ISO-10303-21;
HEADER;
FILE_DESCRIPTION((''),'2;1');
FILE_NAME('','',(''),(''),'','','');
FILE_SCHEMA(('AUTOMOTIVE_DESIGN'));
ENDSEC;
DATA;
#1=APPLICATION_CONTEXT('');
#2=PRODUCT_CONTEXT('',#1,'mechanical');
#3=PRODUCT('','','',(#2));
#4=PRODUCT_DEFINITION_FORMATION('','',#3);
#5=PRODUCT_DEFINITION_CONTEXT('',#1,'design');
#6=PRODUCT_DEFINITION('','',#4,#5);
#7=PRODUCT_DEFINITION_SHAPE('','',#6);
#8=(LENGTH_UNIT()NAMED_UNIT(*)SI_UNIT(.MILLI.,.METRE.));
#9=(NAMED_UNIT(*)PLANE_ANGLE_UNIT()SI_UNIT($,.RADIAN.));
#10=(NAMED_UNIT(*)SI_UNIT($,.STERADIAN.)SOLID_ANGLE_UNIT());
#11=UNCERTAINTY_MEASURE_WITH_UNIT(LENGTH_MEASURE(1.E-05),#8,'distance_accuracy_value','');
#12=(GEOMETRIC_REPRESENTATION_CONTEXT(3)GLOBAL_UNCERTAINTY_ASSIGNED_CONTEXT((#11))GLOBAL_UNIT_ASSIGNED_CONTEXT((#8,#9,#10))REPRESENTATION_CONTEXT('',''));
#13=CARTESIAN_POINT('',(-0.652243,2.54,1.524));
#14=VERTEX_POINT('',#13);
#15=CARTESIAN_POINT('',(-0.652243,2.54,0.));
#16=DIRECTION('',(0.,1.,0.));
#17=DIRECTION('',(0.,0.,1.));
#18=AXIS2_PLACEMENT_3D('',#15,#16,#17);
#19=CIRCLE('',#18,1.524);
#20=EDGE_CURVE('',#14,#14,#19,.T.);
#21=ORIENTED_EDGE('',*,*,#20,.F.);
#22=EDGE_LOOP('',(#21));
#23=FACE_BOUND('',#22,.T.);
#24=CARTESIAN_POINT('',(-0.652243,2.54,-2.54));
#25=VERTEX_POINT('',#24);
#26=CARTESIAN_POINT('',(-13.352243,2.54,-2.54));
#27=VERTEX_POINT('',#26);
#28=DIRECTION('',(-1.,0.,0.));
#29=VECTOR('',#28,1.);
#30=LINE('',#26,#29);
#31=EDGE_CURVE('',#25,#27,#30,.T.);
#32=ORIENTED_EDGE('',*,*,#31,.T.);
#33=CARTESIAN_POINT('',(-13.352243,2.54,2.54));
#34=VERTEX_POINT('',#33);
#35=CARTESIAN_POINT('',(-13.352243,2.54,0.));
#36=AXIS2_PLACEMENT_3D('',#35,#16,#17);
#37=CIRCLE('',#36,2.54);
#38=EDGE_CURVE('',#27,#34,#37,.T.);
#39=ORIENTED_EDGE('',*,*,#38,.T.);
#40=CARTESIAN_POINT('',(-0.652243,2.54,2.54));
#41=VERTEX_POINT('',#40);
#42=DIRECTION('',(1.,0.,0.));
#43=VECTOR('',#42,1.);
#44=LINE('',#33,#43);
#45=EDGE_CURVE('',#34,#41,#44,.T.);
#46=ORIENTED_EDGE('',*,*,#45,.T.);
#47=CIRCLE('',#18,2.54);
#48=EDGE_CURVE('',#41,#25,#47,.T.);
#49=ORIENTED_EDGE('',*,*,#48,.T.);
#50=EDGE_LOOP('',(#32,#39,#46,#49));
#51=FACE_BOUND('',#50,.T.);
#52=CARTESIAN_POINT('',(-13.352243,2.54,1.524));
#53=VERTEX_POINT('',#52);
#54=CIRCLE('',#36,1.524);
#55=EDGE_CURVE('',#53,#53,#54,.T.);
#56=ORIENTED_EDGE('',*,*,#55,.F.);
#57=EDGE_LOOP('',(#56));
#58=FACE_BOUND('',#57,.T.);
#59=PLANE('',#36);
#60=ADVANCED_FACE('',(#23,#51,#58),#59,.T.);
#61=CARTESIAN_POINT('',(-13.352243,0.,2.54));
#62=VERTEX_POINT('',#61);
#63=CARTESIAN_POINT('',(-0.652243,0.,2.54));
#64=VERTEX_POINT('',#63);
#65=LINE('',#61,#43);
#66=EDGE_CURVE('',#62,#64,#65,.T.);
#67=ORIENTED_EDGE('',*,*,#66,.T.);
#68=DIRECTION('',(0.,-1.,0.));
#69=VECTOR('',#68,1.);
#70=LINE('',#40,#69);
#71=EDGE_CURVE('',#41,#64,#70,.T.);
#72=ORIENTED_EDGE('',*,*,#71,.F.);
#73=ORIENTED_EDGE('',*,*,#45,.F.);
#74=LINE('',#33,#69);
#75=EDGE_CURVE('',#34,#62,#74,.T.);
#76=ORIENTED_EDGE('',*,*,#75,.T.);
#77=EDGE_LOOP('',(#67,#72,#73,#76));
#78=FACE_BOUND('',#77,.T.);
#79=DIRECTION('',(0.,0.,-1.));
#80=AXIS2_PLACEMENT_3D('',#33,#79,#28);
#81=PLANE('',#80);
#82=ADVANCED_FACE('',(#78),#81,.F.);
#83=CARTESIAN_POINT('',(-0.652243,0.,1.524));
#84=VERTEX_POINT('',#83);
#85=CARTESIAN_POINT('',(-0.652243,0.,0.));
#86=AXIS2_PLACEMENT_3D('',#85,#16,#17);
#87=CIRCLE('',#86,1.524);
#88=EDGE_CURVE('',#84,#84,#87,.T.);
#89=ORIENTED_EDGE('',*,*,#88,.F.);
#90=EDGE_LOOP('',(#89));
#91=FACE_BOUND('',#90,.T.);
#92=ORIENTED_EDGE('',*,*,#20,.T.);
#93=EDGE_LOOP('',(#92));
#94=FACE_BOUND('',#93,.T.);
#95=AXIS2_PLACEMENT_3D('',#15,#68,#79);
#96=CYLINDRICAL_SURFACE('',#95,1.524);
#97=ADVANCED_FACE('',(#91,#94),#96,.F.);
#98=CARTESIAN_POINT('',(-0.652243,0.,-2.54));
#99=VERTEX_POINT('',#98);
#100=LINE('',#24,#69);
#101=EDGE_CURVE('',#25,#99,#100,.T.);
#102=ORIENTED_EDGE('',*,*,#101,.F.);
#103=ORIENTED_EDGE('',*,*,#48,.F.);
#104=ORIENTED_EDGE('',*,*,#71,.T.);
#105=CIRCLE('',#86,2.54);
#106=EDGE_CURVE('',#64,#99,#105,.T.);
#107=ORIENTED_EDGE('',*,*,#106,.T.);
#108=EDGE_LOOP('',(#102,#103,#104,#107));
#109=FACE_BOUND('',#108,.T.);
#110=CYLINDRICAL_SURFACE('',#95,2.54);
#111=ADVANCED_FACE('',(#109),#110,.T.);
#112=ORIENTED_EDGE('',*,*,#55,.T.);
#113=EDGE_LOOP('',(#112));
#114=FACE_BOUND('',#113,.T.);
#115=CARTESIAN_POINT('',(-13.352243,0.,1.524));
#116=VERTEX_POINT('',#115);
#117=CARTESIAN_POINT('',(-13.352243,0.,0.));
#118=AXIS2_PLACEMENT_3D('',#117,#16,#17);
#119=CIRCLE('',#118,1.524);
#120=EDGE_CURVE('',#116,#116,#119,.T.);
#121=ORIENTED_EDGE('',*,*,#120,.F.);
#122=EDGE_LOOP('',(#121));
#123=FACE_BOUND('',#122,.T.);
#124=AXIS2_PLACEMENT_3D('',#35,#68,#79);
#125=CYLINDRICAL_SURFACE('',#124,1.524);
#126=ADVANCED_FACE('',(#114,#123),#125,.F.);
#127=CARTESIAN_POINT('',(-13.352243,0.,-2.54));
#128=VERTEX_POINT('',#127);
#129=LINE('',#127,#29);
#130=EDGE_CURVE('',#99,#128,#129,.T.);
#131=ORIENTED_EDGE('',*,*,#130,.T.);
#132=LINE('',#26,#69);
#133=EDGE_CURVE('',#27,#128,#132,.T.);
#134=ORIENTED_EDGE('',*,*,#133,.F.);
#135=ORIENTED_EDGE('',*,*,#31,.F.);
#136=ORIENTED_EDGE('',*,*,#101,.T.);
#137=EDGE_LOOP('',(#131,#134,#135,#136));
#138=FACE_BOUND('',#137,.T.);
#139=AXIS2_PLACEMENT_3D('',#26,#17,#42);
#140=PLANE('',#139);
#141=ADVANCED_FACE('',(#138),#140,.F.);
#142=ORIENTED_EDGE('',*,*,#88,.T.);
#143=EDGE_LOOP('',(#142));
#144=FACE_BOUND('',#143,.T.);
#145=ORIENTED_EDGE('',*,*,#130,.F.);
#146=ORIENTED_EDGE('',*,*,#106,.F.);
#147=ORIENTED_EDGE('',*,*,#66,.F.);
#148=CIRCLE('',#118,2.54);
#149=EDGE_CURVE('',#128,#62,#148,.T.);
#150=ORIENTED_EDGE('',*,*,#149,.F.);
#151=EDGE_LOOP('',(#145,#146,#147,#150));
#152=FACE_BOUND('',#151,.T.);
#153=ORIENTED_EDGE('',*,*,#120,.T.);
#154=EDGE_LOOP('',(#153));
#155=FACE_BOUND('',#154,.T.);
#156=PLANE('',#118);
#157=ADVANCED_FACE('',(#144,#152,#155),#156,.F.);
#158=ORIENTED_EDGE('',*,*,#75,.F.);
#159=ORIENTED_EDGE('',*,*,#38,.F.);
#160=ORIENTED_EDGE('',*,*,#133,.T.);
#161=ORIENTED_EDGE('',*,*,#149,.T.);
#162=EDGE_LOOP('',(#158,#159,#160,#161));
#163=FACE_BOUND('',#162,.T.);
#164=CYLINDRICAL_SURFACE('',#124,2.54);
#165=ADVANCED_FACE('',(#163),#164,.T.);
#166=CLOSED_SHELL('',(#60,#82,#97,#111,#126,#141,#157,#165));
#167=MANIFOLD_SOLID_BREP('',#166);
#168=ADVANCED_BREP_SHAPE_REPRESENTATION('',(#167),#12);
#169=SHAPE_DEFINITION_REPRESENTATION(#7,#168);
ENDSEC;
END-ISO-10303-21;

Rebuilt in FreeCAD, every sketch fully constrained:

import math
import FreeCAD as App
import Part
import Sketcher
Q = App.Units.Quantity

doc = App.newDocument("Part")
body = doc.addObject("PartDesign::Body", "Body")

sketch1 = body.newObject("Sketcher::SketchObject", "Sketch")
sketch1.AttachmentSupport = (doc.getObject("XZ_Plane"), [""])
sketch1.MapMode = "FlatFace"
sketch1.addGeometry([
    Part.LineSegment(App.Vector(-0.652243, -2.54, 0), App.Vector(-13.352243, -2.54, 0)),
    Part.ArcOfCircle(Part.Circle(App.Vector(-13.352243, 0, 0), App.Vector(0, 0, 1), 2.54), math.radians(90), math.radians(270)),
    Part.LineSegment(App.Vector(-13.352243, 2.54, 0), App.Vector(-0.652243, 2.54, 0)),
    Part.ArcOfCircle(Part.Circle(App.Vector(-0.652243, 0, 0), App.Vector(0, 0, 1), 2.54), math.radians(-90), math.radians(90)),
    Part.Circle(App.Vector(-0.652243, 0, 0), App.Vector(0, 0, 1), 1.524),
    Part.Circle(App.Vector(-13.352243, 0, 0), App.Vector(0, 0, 1), 1.524),
], False)
sketch1.addConstraint([
    Sketcher.Constraint("Tangent", 0, 2, 1, 2),
    Sketcher.Constraint("Tangent", 1, 1, 2, 1),
    Sketcher.Constraint("Tangent", 2, 2, 3, 2),
    Sketcher.Constraint("Tangent", 3, 1, 0, 1),
    Sketcher.Constraint("Horizontal", 0),
    Sketcher.Constraint("Horizontal", 2),
    Sketcher.Constraint("Coincident", 4, 3, 3, 3),
    Sketcher.Constraint("Coincident", 5, 3, 1, 3),
    Sketcher.Constraint("Equal", 4, 5),
    Sketcher.Constraint("PointOnObject", 1, 3, -1),
    Sketcher.Constraint("Radius", 1, Q("0.1 in")),
    Sketcher.Constraint("Diameter", 4, Q("0.12 in")),
    Sketcher.Constraint("DistanceX", 0, 2, 0, 1, Q("0.5 in")),
    Sketcher.Constraint("DistanceX", 1, 3, -1, 1, 13.352243),
])
pad1 = body.newObject("PartDesign::Pad", "Pad")
pad1.Profile = sketch1
pad1.Length = Q("0.1 in")
pad1.Reversed = True

doc.recompute()
